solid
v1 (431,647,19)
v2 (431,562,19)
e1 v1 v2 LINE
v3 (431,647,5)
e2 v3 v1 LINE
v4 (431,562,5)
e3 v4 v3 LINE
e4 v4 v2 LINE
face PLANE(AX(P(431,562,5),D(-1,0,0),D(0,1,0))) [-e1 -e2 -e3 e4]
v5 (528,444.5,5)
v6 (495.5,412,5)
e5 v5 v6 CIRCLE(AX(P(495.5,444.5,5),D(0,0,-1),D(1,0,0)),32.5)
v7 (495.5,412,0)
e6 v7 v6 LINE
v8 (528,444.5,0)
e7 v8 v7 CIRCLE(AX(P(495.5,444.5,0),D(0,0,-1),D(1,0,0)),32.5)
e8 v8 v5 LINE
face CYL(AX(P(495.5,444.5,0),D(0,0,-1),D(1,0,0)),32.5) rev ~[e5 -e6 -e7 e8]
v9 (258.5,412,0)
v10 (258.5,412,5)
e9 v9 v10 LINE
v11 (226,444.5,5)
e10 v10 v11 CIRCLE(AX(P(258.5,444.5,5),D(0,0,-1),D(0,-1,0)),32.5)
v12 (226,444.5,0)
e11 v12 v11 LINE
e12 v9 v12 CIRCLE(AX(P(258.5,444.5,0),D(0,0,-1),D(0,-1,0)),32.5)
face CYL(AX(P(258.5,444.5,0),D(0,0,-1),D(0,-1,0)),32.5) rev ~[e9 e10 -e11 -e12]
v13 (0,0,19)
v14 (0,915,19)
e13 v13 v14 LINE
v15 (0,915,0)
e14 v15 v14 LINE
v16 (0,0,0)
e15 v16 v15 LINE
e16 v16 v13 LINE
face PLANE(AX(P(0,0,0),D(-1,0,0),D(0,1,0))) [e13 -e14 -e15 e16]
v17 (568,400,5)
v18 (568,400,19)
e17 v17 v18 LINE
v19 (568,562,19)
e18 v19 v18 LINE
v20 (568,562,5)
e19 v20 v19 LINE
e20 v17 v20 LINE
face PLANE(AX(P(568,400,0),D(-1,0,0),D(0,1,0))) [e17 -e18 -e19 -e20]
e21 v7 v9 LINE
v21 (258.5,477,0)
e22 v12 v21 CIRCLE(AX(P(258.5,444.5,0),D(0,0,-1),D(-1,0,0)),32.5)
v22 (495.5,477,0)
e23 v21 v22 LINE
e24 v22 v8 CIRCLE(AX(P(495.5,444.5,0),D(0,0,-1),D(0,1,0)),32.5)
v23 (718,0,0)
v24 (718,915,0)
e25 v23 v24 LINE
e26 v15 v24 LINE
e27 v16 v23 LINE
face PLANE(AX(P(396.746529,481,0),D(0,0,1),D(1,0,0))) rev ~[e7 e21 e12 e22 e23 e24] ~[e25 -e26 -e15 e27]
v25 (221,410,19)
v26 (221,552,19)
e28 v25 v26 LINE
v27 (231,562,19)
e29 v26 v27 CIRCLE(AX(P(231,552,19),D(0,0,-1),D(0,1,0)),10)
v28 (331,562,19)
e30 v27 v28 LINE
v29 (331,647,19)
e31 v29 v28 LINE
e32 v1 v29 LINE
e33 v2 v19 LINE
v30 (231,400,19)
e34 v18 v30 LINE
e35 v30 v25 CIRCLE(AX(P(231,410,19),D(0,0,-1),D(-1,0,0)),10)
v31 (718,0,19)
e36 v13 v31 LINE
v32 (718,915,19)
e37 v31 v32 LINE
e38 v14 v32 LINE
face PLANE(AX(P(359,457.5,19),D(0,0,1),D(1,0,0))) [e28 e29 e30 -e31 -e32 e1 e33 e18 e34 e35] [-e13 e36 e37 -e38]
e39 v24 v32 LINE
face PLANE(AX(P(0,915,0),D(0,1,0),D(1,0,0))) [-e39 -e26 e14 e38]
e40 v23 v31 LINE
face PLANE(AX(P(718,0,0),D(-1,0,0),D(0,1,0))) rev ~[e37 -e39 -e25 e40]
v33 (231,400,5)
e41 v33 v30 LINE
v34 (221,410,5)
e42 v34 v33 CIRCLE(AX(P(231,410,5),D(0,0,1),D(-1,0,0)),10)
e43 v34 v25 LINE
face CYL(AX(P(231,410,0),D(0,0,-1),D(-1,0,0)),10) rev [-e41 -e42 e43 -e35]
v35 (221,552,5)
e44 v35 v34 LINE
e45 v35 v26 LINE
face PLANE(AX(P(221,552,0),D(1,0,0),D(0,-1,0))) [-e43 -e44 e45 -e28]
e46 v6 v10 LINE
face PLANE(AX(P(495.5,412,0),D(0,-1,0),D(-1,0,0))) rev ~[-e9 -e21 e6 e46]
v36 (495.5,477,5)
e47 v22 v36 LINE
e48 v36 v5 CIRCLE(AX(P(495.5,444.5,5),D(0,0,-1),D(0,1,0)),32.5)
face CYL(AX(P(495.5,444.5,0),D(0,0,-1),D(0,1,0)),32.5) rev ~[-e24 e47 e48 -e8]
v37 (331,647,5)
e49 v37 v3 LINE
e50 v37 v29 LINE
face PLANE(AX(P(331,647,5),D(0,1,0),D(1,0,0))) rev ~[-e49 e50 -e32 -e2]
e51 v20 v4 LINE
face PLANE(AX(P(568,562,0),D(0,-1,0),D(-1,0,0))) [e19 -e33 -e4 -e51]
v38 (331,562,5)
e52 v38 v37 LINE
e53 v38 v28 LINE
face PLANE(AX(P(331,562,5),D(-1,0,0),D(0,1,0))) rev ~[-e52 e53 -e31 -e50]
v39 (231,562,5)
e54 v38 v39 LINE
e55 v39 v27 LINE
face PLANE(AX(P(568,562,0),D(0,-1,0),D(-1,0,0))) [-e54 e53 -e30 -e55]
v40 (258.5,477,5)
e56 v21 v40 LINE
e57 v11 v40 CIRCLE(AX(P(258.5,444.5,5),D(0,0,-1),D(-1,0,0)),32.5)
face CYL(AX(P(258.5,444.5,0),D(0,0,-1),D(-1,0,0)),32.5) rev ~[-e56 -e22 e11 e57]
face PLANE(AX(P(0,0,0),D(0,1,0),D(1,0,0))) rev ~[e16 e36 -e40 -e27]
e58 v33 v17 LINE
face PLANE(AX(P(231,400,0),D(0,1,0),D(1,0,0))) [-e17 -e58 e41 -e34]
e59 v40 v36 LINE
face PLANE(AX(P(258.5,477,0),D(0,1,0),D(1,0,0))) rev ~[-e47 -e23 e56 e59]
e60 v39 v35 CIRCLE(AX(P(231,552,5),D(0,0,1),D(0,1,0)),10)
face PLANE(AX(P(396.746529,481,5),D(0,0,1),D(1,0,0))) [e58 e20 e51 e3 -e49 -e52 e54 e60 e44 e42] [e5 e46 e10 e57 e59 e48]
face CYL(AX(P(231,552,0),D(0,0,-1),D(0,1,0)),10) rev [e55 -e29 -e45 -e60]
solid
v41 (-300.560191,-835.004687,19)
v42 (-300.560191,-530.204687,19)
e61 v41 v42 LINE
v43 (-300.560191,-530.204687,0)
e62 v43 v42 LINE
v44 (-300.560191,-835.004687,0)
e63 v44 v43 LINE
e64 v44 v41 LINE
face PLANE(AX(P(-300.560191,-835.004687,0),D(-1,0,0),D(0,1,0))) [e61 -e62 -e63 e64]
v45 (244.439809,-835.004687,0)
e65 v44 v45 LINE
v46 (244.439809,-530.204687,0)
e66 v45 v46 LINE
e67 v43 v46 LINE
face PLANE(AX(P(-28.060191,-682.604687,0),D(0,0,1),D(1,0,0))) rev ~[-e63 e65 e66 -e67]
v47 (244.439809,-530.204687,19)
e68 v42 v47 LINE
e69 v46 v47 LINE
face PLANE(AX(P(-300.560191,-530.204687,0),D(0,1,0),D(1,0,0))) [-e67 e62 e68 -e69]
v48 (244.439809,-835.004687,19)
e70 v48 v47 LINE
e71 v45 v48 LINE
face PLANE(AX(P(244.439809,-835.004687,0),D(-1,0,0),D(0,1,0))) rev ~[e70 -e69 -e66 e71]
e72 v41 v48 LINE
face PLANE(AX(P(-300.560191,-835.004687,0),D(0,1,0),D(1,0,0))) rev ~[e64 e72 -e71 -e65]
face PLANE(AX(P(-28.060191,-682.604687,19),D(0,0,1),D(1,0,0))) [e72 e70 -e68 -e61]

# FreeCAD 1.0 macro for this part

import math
import FreeCAD as App
import Part
import Sketcher
from FreeCAD import Vector
Q = App.Units.Quantity

doc = App.newDocument("Part")
body = doc.addObject("PartDesign::Body", "Body")

# Sketch on XY plane
sketch1 = doc.addObject("Sketcher::SketchObject", "Sketch")
body.addObject(sketch1)
sketch1.AttachmentSupport = (doc.XY_Plane, [""])
sketch1.MapMode = "FlatFace"
sketch1.addGeometry([
    Part.LineSegment(Vector(0, 915, 0), Vector(0, 0, 0)),
    Part.LineSegment(Vector(0, 0, 0), Vector(718, 0, 0)),
    Part.LineSegment(Vector(718, 0, 0), Vector(718, 915, 0)),
    Part.LineSegment(Vector(718, 915, 0), Vector(0, 915, 0)),
], False)
sketch1.addConstraint([
    Sketcher.Constraint("Coincident", 0, 2, 1, 1),
    Sketcher.Constraint("Coincident", 1, 2, 2, 1),
    Sketcher.Constraint("Coincident", 2, 2, 3, 1),
    Sketcher.Constraint("Coincident", 3, 2, 0, 1),
    Sketcher.Constraint("Vertical", 0),
    Sketcher.Constraint("Horizontal", 1),
    Sketcher.Constraint("Vertical", 2),
    Sketcher.Constraint("Horizontal", 3),
    Sketcher.Constraint("Coincident", 0, 2, -1, 1),
    Sketcher.Constraint("DistanceX", 1, 1, 1, 2, Q("718 mm")),
    Sketcher.Constraint("DistanceY", 0, 2, 0, 1, Q("915 mm")),
])
pad1 = doc.addObject("PartDesign::Pad", "Pad")
body.addObject(pad1)
pad1.Profile = sketch1
pad1.Length = 19

# Sketch on XY plane
sketch2 = doc.addObject("Sketcher::SketchObject", "Sketch001")
body.addObject(sketch2)
sketch2.AttachmentSupport = (doc.XY_Plane, [""])
sketch2.MapMode = "FlatFace"
sketch2.addGeometry([
    Part.LineSegment(Vector(568, 562, 0), Vector(231, 562, 0)),  # 0
    Part.ArcOfCircle(Part.Circle(Vector(231, 552, 0), Vector(0, 0, 1), 10), math.radians(90), math.radians(180)),  # 1
    Part.LineSegment(Vector(221, 552, 0), Vector(221, 410, 0)),  # 2
    Part.ArcOfCircle(Part.Circle(Vector(231, 410, 0), Vector(0, 0, 1), 10), math.radians(180), math.radians(270)),  # 3
    Part.LineSegment(Vector(231, 400, 0), Vector(568, 400, 0)),  # 4
    Part.LineSegment(Vector(568, 400, 0), Vector(568, 562, 0)),  # 5
], False)
sketch2.addConstraint([
    Sketcher.Constraint("Tangent", 0, 2, 1, 1),
    Sketcher.Constraint("Tangent", 1, 2, 2, 1),
    Sketcher.Constraint("Tangent", 2, 2, 3, 1),
    Sketcher.Constraint("Tangent", 3, 2, 4, 1),
    Sketcher.Constraint("Coincident", 4, 2, 5, 1),
    Sketcher.Constraint("Coincident", 5, 2, 0, 1),
    Sketcher.Constraint("Horizontal", 0),
    Sketcher.Constraint("Vertical", 2),
    Sketcher.Constraint("Horizontal", 4),
    Sketcher.Constraint("Vertical", 5),
    Sketcher.Constraint("Equal", 1, 3),
    Sketcher.Constraint("Radius", 1, Q("10 mm")),
    Sketcher.Constraint("DistanceX", 0, 2, 0, 1, Q("337 mm")),
    Sketcher.Constraint("DistanceY", 2, 2, 2, 1, Q("142 mm")),
    Sketcher.Constraint("DistanceX", -1, 1, 1, 3, Q("231 mm")),
    Sketcher.Constraint("DistanceY", -1, 1, 1, 3, Q("552 mm")),
])
pocket1 = doc.addObject("PartDesign::Pocket", "Pocket")
body.addObject(pocket1)
pocket1.Profile = sketch2
pocket1.Length = 30
pocket1.Reversed = True

# Sketch on XY plane
sketch3 = doc.addObject("Sketcher::SketchObject", "Sketch002")
body.addObject(sketch3)
sketch3.AttachmentSupport = (doc.XY_Plane, [""])
sketch3.MapMode = "FlatFace"
sketch3.addGeometry([
    Part.LineSegment(Vector(568, 562, 0), Vector(431, 562, 0)),  # 0
    Part.LineSegment(Vector(431, 562, 0), Vector(431, 647, 0)),  # 1
    Part.LineSegment(Vector(431, 647, 0), Vector(331, 647, 0)),  # 2
    Part.LineSegment(Vector(331, 647, 0), Vector(331, 562, 0)),  # 3
    Part.LineSegment(Vector(331, 562, 0), Vector(231, 562, 0)),  # 4
    Part.ArcOfCircle(Part.Circle(Vector(231, 552, 0), Vector(0, 0, 1), 10), math.radians(90), math.radians(180)),  # 5
    Part.LineSegment(Vector(221, 552, 0), Vector(221, 410, 0)),  # 6
    Part.ArcOfCircle(Part.Circle(Vector(231, 410, 0), Vector(0, 0, 1), 10), math.radians(180), math.radians(270)),  # 7
    Part.LineSegment(Vector(231, 400, 0), Vector(568, 400, 0)),  # 8
    Part.LineSegment(Vector(568, 400, 0), Vector(568, 562, 0)),  # 9
    Part.ArcOfCircle(Part.Circle(Vector(496, 444, 0), Vector(0, 0, 1), 32), math.radians(-90), math.radians(0)),  # 10
    Part.LineSegment(Vector(496, 412, 0), Vector(258, 412, 0)),  # 11
    Part.ArcOfCircle(Part.Circle(Vector(258, 444, 0), Vector(0, 0, 1), 32), math.radians(180), math.radians(270)),  # 12
    Part.ArcOfCircle(Part.Circle(Vector(258, 444, 0), Vector(0, 0, 1), 32), math.radians(90), math.radians(180)),  # 13
    Part.LineSegment(Vector(258, 477, 0), Vector(496, 477, 0)),  # 14
    Part.ArcOfCircle(Part.Circle(Vector(496, 444, 0), Vector(0, 0, 1), 32), math.radians(0), math.radians(90)),  # 15
], False)
sketch3.addConstraint([
    Sketcher.Constraint("Coincident", 0, 2, 1, 1),
    Sketcher.Constraint("Coincident", 1, 2, 2, 1),
    Sketcher.Constraint("Coincident", 2, 2, 3, 1),
    Sketcher.Constraint("Coincident", 3, 2, 4, 1),
    Sketcher.Constraint("Tangent", 4, 2, 5, 1),
    Sketcher.Constraint("Tangent", 5, 2, 6, 1),
    Sketcher.Constraint("Tangent", 6, 2, 7, 1),
    Sketcher.Constraint("Tangent", 7, 2, 8, 1),
    Sketcher.Constraint("Coincident", 8, 2, 9, 1),
    Sketcher.Constraint("Coincident", 9, 2, 0, 1),
    Sketcher.Constraint("Tangent", 10, 1, 11, 1),
    Sketcher.Constraint("Tangent", 11, 2, 12, 2),
    Sketcher.Constraint("Tangent", 12, 1, 13, 2),
    Sketcher.Constraint("Tangent", 13, 1, 14, 1),
    Sketcher.Constraint("Tangent", 14, 2, 15, 2),
    Sketcher.Constraint("Tangent", 15, 1, 10, 2),
    Sketcher.Constraint("Horizontal", 0),
    Sketcher.Constraint("Vertical", 1),
    Sketcher.Constraint("Horizontal", 2),
    Sketcher.Constraint("Vertical", 3),
    Sketcher.Constraint("Horizontal", 4),
    Sketcher.Constraint("Vertical", 6),
    Sketcher.Constraint("Horizontal", 8),
    Sketcher.Constraint("Vertical", 9),
    Sketcher.Constraint("Horizontal", 11),
    Sketcher.Constraint("Horizontal", 14),
    Sketcher.Constraint("Equal", 5, 7),
    Sketcher.Constraint("Equal", 10, 12),
    Sketcher.Constraint("Equal", 12, 13),
    Sketcher.Constraint("Horizontal", 0, 2, 3, 2),
    Sketcher.Constraint("Horizontal", 15, 3, 12, 1),
    Sketcher.Constraint("Horizontal", 12, 1, 15, 1),
    Sketcher.Constraint("Equal", 2, 4),
    Sketcher.Constraint("Radius", 5, Q("10 mm")),
    Sketcher.Constraint("Radius", 10, Q("32.5 mm")),
    Sketcher.Constraint("DistanceX", 0, 2, 0, 1, Q("137 mm")),
    Sketcher.Constraint("DistanceX", 2, 2, 2, 1, Q("100 mm")),
    Sketcher.Constraint("DistanceX", 11, 2, 11, 1, Q("237 mm")),
    Sketcher.Constraint("DistanceY", 1, 1, 1, 2, Q("85 mm")),
    Sketcher.Constraint("DistanceY", 6, 2, 6, 1, Q("142 mm")),
    Sketcher.Constraint("DistanceX", -1, 1, 5, 3, Q("231 mm")),
    Sketcher.Constraint("DistanceY", -1, 1, 5, 3, Q("552 mm")),
    Sketcher.Constraint("DistanceY", -1, 1, 10, 1, Q("412 mm")),
    Sketcher.Constraint("DistanceX", -1, 1, 12, 1, Q("226 mm")),
])
pad2 = doc.addObject("PartDesign::Pad", "Pad001")
body.addObject(pad2)
pad2.Profile = sketch3
pad2.Length = 5

# Sketch on XY plane
sketch4 = doc.addObject("Sketcher::SketchObject", "Sketch003")
body.addObject(sketch4)
sketch4.AttachmentSupport = (doc.XY_Plane, [""])
sketch4.MapMode = "FlatFace"
sketch4.AttachmentOffset = App.Placement(Vector(0, 0, 5), App.Rotation())
sketch4.addGeometry([
    Part.LineSegment(Vector(331, 647, 0), Vector(331, 562, 0)),
    Part.LineSegment(Vector(331, 562, 0), Vector(431, 562, 0)),
    Part.LineSegment(Vector(431, 562, 0), Vector(431, 647, 0)),
    Part.LineSegment(Vector(431, 647, 0), Vector(331, 647, 0)),
], False)
sketch4.addConstraint([
    Sketcher.Constraint("Coincident", 0, 2, 1, 1),
    Sketcher.Constraint("Coincident", 1, 2, 2, 1),
    Sketcher.Constraint("Coincident", 2, 2, 3, 1),
    Sketcher.Constraint("Coincident", 3, 2, 0, 1),
    Sketcher.Constraint("Vertical", 0),
    Sketcher.Constraint("Horizontal", 1),
    Sketcher.Constraint("Vertical", 2),
    Sketcher.Constraint("Horizontal", 3),
    Sketcher.Constraint("DistanceX", 1, 1, 1, 2, Q("100 mm")),
    Sketcher.Constraint("DistanceY", 0, 2, 0, 1, Q("85 mm")),
    Sketcher.Constraint("DistanceX", -1, 1, 0, 2, Q("331 mm")),
    Sketcher.Constraint("DistanceY", -1, 1, 0, 2, Q("562 mm")),
])
pocket2 = doc.addObject("PartDesign::Pocket", "Pocket001")
body.addObject(pocket2)
pocket2.Profile = sketch4
pocket2.Length = 40
pocket2.Reversed = True
body2 = doc.addObject("PartDesign::Body", "Body001")

# Sketch on XY plane
sketch5 = doc.addObject("Sketcher::SketchObject", "Sketch004")
body2.addObject(sketch5)
sketch5.AttachmentSupport = (doc.getObject("XY_Plane001"), [""])
sketch5.MapMode = "FlatFace"
sketch5.addGeometry([
    Part.LineSegment(Vector(-301, -530, 0), Vector(-301, -835, 0)),
    Part.LineSegment(Vector(-301, -835, 0), Vector(244, -835, 0)),
    Part.LineSegment(Vector(244, -835, 0), Vector(244, -530, 0)),
    Part.LineSegment(Vector(244, -530, 0), Vector(-301, -530, 0)),
], False)
sketch5.addConstraint([
    Sketcher.Constraint("Coincident", 0, 2, 1, 1),
    Sketcher.Constraint("Coincident", 1, 2, 2, 1),
    Sketcher.Constraint("Coincident", 2, 2, 3, 1),
    Sketcher.Constraint("Coincident", 3, 2, 0, 1),
    Sketcher.Constraint("Vertical", 0),
    Sketcher.Constraint("Horizontal", 1),
    Sketcher.Constraint("Vertical", 2),
    Sketcher.Constraint("Horizontal", 3),
    Sketcher.Constraint("DistanceX", 1, 1, 1, 2, Q("545 mm")),
    Sketcher.Constraint("DistanceY", 0, 2, 0, 1, Q("304.8 mm")),
    Sketcher.Constraint("DistanceX", 0, 2, -1, 1, Q("300.560191 mm")),
    Sketcher.Constraint("DistanceY", 0, 2, -1, 1, Q("835.004687 mm")),
])
pad3 = doc.addObject("PartDesign::Pad", "Pad002")
body2.addObject(pad3)
pad3.Profile = sketch5
pad3.Length = 19

doc.recompute()
